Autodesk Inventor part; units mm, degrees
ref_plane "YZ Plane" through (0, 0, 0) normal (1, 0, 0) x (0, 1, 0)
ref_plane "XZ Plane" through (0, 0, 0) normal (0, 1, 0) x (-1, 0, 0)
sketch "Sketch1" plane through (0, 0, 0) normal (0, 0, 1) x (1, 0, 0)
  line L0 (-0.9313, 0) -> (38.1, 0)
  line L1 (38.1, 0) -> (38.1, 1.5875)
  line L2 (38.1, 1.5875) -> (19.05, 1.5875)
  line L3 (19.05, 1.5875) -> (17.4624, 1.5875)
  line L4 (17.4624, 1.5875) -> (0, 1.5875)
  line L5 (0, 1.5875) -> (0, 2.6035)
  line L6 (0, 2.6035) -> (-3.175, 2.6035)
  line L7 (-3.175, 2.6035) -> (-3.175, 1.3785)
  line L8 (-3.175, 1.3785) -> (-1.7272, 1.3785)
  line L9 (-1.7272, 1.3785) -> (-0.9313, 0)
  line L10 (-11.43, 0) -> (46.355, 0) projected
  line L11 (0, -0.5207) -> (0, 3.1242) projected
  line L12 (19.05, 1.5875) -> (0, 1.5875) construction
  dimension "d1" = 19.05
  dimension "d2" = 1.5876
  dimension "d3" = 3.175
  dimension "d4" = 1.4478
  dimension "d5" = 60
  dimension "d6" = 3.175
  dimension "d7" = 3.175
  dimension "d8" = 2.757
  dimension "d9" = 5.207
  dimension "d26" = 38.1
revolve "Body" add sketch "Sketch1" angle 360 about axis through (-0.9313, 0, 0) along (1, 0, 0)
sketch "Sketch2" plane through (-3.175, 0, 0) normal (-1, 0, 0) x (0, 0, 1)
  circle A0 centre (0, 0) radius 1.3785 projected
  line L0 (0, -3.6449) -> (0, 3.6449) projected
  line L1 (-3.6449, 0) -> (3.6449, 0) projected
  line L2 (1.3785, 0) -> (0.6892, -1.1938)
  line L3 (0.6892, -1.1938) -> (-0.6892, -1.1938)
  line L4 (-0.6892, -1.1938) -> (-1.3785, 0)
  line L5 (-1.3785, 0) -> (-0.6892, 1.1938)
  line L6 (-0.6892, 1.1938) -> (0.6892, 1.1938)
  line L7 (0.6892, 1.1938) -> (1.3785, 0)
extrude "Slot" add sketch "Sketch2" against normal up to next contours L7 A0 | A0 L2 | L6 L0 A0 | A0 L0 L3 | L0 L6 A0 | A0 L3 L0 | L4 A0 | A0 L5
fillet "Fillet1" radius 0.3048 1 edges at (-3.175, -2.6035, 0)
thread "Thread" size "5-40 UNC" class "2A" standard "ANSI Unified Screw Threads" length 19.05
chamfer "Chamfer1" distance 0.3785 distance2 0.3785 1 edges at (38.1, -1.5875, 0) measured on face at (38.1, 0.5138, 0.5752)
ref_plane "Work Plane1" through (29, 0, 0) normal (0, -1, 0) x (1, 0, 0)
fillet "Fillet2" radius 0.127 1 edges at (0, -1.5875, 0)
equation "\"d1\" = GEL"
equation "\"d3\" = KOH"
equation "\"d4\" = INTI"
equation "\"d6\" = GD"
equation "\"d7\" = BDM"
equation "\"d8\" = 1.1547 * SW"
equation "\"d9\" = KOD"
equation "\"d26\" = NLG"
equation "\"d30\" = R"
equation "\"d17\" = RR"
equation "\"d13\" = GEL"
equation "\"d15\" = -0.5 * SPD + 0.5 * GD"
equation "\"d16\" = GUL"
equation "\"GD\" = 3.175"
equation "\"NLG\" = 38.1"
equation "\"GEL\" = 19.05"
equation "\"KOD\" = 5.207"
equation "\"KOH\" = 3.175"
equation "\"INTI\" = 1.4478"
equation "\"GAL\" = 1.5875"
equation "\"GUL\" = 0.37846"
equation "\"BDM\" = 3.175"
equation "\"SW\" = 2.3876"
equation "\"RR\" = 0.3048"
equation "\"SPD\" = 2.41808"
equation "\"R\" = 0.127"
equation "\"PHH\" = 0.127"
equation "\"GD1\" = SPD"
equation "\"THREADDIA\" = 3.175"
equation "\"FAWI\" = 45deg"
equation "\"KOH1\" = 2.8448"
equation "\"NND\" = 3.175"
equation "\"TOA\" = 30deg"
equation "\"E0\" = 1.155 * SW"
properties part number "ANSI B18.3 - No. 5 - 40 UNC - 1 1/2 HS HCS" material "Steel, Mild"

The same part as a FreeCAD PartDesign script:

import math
import FreeCAD as App
import Part
import Sketcher
from FreeCAD import Vector
Q = App.Units.Quantity


def edges_at(feature, points):
    """Names of the edges that pass closest to the given points."""
    edges = feature.Shape.Edges
    near = lambda p: min(range(len(edges)), key=lambda i: edges[i].distToShape(Part.Vertex(*p))[0])
    return sorted({f"Edge{near(p) + 1}" for p in points})


def add_polygon(sketch, points):
    """Adds a closed chain of lines whose ends are joined by coincident constraints."""
    first, n = sketch.GeometryCount, len(points)
    for a, b in zip(points, points[1:] + points[:1]):
        sketch.addGeometry(Part.LineSegment(App.Vector(*a, 0), App.Vector(*b, 0)), False)
    for i in range(n):
        sketch.addConstraint(Sketcher.Constraint("Coincident", first + i, 2, first + (i + 1) % n, 1))

doc = App.newDocument("Part")
body = doc.addObject("PartDesign::Body", "Body")

sketch1 = body.newObject("Sketcher::SketchObject", "Sketch")
sketch1.AttachmentSupport = (doc.getObject("XY_Plane"), [""])
sketch1.MapMode = "FlatFace"
add_polygon(sketch1, [(-1.7, 1.4), (-0.9, 0), (38.1, 0), (38.1, 1.6), (0, 1.6), (0, 2.6), (-3.2, 2.6), (-3.2, 1.4)])
sketch1.addConstraint([
    Sketcher.Constraint("Horizontal", 1),
    Sketcher.Constraint("Vertical", 2),
    Sketcher.Constraint("Horizontal", 3),
    Sketcher.Constraint("Vertical", 4),
    Sketcher.Constraint("Horizontal", 5),
    Sketcher.Constraint("Vertical", 6),
    Sketcher.Constraint("Horizontal", 7),
    Sketcher.Constraint("PointOnObject", 0, 2, -1),
    Sketcher.Constraint("PointOnObject", 3, 2, -2),
    Sketcher.Constraint("DistanceX", 3, 2, 3, 1, Q("1.5 in")),
    Sketcher.Constraint("DistanceX", 5, 2, 5, 1, Q("0.125 in")),
    Sketcher.Constraint("DistanceX", 7, 1, 7, 2, Q("0.057 in")),
    Sketcher.Constraint("DistanceY", 2, 1, 2, 2, Q("0.0625 in")),
    Sketcher.Constraint("Angle", 0, Q("-59.9993 deg")),
    Sketcher.Constraint("DistanceY", 4, 1, 4, 2, Q("0.04 in")),
    Sketcher.Constraint("DistanceX", 1, 1, 1, 2, Q("39.0313 mm")),
])
revolution = body.newObject("PartDesign::Revolution", "Revolution")
revolution.Profile = sketch1
revolution.ReferenceAxis = (sketch1, ["H_Axis"])
revolution.Angle = 360

sketch2 = body.newObject("Sketcher::SketchObject", "Sketch001")
sketch2.AttachmentSupport = (doc.getObject("YZ_Plane"), [""])
sketch2.MapMode = "FlatFace"
sketch2.AttachmentOffset = App.Placement(Vector(0, 0, -0.125 * 25.4), App.Rotation())
sketch2.addGeometry([
    Part.LineSegment(Vector(1.2, 0.7, 0), Vector(0, 1.4, 0)),
    Part.ArcOfCircle(Part.Circle(Vector(0, 0, 0), Vector(0, 0, 1), 1.4), math.radians(30), math.radians(90)),
    Part.ArcOfCircle(Part.Circle(Vector(0, 0, 0), Vector(0, 0, 1), 1.4), math.radians(90), math.radians(150)),
    Part.LineSegment(Vector(0, 1.4, 0), Vector(-1.2, 0.7, 0)),
    Part.ArcOfCircle(Part.Circle(Vector(0, 0, 0), Vector(0, 0, 1), 1.4), math.radians(-30), math.radians(30)),
    Part.LineSegment(Vector(1.2, 0.7, 0), Vector(1.2, -0.7, 0)),
    Part.LineSegment(Vector(-1.2, 0.7, 0), Vector(-1.2, -0.7, 0)),
    Part.ArcOfCircle(Part.Circle(Vector(0, 0, 0), Vector(0, 0, 1), 1.4), math.radians(150), math.radians(210)),
    Part.LineSegment(Vector(-1.2, -0.7, 0), Vector(0, -1.4, 0)),
    Part.ArcOfCircle(Part.Circle(Vector(0, 0, 0), Vector(0, 0, 1), 1.4), math.radians(-150), math.radians(-90)),
    Part.ArcOfCircle(Part.Circle(Vector(0, 0, 0), Vector(0, 0, 1), 1.4), math.radians(-90), math.radians(-30)),
    Part.LineSegment(Vector(0, -1.4, 0), Vector(1.2, -0.7, 0)),
], False)
sketch2.addConstraint([
    Sketcher.Constraint("Coincident", 0, 1, 1, 1),
    Sketcher.Constraint("Coincident", 1, 2, 0, 2),
    Sketcher.Constraint("Coincident", 2, 1, 3, 1),
    Sketcher.Constraint("Coincident", 3, 2, 2, 2),
    Sketcher.Constraint("Coincident", 4, 1, 5, 2),
    Sketcher.Constraint("Coincident", 5, 1, 4, 2),
    Sketcher.Constraint("Coincident", 6, 1, 7, 1),
    Sketcher.Constraint("Coincident", 7, 2, 6, 2),
    Sketcher.Constraint("Coincident", 8, 1, 9, 1),
    Sketcher.Constraint("Coincident", 9, 2, 8, 2),
    Sketcher.Constraint("Coincident", 10, 1, 11, 1),
    Sketcher.Constraint("Coincident", 11, 2, 10, 2),
    Sketcher.Constraint("Vertical", 5),
    Sketcher.Constraint("Vertical", 6),
    Sketcher.Constraint("Coincident", 1, 3, -1, 1),
    Sketcher.Constraint("Coincident", 2, 3, -1, 1),
    Sketcher.Constraint("Coincident", 4, 3, -1, 1),
    Sketcher.Constraint("Coincident", 7, 3, -1, 1),
    Sketcher.Constraint("Coincident", 9, 3, -1, 1),
    Sketcher.Constraint("Coincident", 10, 3, -1, 1),
    Sketcher.Constraint("Coincident", 2, 1, 1, 2),
    Sketcher.Constraint("Coincident", 5, 1, 0, 1),
    Sketcher.Constraint("Coincident", 6, 1, 3, 2),
    Sketcher.Constraint("Coincident", 8, 1, 7, 2),
    Sketcher.Constraint("Coincident", 10, 1, 9, 2),
    Sketcher.Constraint("PointOnObject", 1, 2, -2),
    Sketcher.Constraint("PointOnObject", 9, 2, -2),
    Sketcher.Constraint("Parallel", 0, 8),
    Sketcher.Constraint("Parallel", 3, 11),
    Sketcher.Constraint("Radius", 1, Q("1.3785 mm")),
    Sketcher.Constraint("DistanceX", -1, 1, 0, 1, Q("0.047 in")),
])
pad1 = body.newObject("PartDesign::Pad", "Pad")
pad1.Profile = sketch2
pad1.Type = "UpToFirst"
doc.recompute()

fillet = body.newObject("PartDesign::Fillet", "Fillet")
fillet.Base = (pad1, edges_at(pad1, [(-3.175, -2.603, 0)]))
fillet.Radius = Q("0.012 in")
doc.recompute()

chamfer = body.newObject("PartDesign::Chamfer", "Chamfer")
chamfer.Base = (fillet, edges_at(fillet, [(38.1, -1.587, 0)]))
chamfer.ChamferType = "Two distances"
chamfer.Size = Q("0.0149016 in")
chamfer.Size2 = Q("0.0149016 in")
doc.recompute()

fillet2 = body.newObject("PartDesign::Fillet", "Fillet001")
fillet2.Base = (chamfer, edges_at(chamfer, [(0, -1.587, 0)]))
fillet2.Radius = Q("0.005 in")

doc.recompute()
